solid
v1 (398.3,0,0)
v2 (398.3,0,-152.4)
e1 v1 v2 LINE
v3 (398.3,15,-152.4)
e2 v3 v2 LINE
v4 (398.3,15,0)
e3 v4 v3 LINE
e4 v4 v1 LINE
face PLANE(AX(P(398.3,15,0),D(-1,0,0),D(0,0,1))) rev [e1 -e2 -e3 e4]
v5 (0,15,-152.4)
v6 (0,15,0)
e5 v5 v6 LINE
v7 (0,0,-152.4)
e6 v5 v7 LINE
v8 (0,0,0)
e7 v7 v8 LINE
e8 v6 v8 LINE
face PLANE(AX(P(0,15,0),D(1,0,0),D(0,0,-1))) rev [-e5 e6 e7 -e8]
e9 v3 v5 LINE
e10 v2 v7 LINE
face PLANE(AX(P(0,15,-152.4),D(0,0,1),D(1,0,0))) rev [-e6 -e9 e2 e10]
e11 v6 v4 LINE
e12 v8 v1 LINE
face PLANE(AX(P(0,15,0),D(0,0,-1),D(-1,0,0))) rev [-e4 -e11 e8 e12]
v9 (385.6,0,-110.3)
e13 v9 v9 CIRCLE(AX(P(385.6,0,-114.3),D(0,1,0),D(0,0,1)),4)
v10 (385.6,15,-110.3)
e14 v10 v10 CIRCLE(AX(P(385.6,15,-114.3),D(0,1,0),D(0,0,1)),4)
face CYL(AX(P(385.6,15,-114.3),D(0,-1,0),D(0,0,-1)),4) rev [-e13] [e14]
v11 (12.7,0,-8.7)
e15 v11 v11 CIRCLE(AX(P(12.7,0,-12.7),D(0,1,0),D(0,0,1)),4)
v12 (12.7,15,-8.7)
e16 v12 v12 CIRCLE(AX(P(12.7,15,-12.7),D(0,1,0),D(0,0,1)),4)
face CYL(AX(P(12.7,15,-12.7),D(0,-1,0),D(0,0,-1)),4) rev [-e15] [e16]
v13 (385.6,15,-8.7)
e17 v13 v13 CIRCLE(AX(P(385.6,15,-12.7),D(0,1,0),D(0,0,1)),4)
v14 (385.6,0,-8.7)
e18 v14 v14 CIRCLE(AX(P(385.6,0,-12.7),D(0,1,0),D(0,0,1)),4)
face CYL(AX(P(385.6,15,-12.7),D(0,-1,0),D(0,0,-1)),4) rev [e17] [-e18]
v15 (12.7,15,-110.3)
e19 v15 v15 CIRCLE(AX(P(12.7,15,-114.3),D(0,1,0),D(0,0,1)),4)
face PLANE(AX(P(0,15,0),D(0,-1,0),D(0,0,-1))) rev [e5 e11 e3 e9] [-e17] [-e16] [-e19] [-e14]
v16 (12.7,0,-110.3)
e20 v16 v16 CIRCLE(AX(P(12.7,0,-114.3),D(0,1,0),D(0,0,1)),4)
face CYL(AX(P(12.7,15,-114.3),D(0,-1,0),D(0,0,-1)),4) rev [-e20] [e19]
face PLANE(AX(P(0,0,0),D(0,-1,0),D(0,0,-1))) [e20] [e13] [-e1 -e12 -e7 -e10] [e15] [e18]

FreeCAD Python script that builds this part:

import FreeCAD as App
import Part
import Sketcher
from FreeCAD import Vector


def add_polygon(sketch, points):
    """Adds a closed chain of lines whose ends are joined by coincident constraints."""
    first, n = sketch.GeometryCount, len(points)
    for a, b in zip(points, points[1:] + points[:1]):
        sketch.addGeometry(Part.LineSegment(App.Vector(*a, 0), App.Vector(*b, 0)), False)
    for i in range(n):
        sketch.addConstraint(Sketcher.Constraint("Coincident", first + i, 2, first + (i + 1) % n, 1))

doc = App.newDocument("Part")
body = doc.addObject("PartDesign::Body", "Body")

# Sketch on XZ plane
sketch1 = body.newObject("Sketcher::SketchObject", "Sketch")
sketch1.AttachmentSupport = (doc.getObject("XZ_Plane"), [""])
sketch1.MapMode = "FlatFace"
add_polygon(sketch1, [(0, -152.4), (0, 0), (398.3, 0), (398.3, -152.4)])  # lines 0-3
sketch1.addGeometry(Part.Circle(Vector(12.7, -12.7, 0), Vector(0, 0, 1), 4), False)  # 4
sketch1.addGeometry(Part.Circle(Vector(385.6, -12.7, 0), Vector(0, 0, 1), 4), False)  # 5
sketch1.addGeometry(Part.Circle(Vector(12.7, -114.3, 0), Vector(0, 0, 1), 4), False)  # 6
sketch1.addGeometry(Part.Circle(Vector(385.6, -114.3, 0), Vector(0, 0, 1), 4), False)  # 7
sketch1.addConstraint([
    Sketcher.Constraint("Vertical", 0),
    Sketcher.Constraint("Horizontal", 1),
    Sketcher.Constraint("Vertical", 2),
    Sketcher.Constraint("Horizontal", 3),
    Sketcher.Constraint("Coincident", 0, 2, -1, 1),
    Sketcher.Constraint("Equal", 4, 5),
    Sketcher.Constraint("Equal", 5, 6),
    Sketcher.Constraint("Equal", 6, 7),
    Sketcher.Constraint("Horizontal", 4, 3, 5, 3),
    Sketcher.Constraint("Horizontal", 6, 3, 7, 3),
    Sketcher.Constraint("Vertical", 4, 3, 6, 3),
    Sketcher.Constraint("Vertical", 5, 3, 7, 3),
    Sketcher.Constraint("Diameter", 4, 8.0),
    Sketcher.Constraint("DistanceX", 1, 1, 1, 2, 398.3),
    Sketcher.Constraint("DistanceY", 0, 1, 0, 2, 152.4),
    Sketcher.Constraint("DistanceX", -1, 1, 4, 3, 12.7),
    Sketcher.Constraint("DistanceY", 4, 3, -1, 1, 12.7),
    Sketcher.Constraint("DistanceX", -1, 1, 5, 3, 385.6),
    Sketcher.Constraint("DistanceY", 6, 3, -1, 1, 114.3),
])
pad1 = body.newObject("PartDesign::Pad", "Pad")
pad1.Profile = sketch1
pad1.Length = 15
pad1.Reversed = True

doc.recompute()
